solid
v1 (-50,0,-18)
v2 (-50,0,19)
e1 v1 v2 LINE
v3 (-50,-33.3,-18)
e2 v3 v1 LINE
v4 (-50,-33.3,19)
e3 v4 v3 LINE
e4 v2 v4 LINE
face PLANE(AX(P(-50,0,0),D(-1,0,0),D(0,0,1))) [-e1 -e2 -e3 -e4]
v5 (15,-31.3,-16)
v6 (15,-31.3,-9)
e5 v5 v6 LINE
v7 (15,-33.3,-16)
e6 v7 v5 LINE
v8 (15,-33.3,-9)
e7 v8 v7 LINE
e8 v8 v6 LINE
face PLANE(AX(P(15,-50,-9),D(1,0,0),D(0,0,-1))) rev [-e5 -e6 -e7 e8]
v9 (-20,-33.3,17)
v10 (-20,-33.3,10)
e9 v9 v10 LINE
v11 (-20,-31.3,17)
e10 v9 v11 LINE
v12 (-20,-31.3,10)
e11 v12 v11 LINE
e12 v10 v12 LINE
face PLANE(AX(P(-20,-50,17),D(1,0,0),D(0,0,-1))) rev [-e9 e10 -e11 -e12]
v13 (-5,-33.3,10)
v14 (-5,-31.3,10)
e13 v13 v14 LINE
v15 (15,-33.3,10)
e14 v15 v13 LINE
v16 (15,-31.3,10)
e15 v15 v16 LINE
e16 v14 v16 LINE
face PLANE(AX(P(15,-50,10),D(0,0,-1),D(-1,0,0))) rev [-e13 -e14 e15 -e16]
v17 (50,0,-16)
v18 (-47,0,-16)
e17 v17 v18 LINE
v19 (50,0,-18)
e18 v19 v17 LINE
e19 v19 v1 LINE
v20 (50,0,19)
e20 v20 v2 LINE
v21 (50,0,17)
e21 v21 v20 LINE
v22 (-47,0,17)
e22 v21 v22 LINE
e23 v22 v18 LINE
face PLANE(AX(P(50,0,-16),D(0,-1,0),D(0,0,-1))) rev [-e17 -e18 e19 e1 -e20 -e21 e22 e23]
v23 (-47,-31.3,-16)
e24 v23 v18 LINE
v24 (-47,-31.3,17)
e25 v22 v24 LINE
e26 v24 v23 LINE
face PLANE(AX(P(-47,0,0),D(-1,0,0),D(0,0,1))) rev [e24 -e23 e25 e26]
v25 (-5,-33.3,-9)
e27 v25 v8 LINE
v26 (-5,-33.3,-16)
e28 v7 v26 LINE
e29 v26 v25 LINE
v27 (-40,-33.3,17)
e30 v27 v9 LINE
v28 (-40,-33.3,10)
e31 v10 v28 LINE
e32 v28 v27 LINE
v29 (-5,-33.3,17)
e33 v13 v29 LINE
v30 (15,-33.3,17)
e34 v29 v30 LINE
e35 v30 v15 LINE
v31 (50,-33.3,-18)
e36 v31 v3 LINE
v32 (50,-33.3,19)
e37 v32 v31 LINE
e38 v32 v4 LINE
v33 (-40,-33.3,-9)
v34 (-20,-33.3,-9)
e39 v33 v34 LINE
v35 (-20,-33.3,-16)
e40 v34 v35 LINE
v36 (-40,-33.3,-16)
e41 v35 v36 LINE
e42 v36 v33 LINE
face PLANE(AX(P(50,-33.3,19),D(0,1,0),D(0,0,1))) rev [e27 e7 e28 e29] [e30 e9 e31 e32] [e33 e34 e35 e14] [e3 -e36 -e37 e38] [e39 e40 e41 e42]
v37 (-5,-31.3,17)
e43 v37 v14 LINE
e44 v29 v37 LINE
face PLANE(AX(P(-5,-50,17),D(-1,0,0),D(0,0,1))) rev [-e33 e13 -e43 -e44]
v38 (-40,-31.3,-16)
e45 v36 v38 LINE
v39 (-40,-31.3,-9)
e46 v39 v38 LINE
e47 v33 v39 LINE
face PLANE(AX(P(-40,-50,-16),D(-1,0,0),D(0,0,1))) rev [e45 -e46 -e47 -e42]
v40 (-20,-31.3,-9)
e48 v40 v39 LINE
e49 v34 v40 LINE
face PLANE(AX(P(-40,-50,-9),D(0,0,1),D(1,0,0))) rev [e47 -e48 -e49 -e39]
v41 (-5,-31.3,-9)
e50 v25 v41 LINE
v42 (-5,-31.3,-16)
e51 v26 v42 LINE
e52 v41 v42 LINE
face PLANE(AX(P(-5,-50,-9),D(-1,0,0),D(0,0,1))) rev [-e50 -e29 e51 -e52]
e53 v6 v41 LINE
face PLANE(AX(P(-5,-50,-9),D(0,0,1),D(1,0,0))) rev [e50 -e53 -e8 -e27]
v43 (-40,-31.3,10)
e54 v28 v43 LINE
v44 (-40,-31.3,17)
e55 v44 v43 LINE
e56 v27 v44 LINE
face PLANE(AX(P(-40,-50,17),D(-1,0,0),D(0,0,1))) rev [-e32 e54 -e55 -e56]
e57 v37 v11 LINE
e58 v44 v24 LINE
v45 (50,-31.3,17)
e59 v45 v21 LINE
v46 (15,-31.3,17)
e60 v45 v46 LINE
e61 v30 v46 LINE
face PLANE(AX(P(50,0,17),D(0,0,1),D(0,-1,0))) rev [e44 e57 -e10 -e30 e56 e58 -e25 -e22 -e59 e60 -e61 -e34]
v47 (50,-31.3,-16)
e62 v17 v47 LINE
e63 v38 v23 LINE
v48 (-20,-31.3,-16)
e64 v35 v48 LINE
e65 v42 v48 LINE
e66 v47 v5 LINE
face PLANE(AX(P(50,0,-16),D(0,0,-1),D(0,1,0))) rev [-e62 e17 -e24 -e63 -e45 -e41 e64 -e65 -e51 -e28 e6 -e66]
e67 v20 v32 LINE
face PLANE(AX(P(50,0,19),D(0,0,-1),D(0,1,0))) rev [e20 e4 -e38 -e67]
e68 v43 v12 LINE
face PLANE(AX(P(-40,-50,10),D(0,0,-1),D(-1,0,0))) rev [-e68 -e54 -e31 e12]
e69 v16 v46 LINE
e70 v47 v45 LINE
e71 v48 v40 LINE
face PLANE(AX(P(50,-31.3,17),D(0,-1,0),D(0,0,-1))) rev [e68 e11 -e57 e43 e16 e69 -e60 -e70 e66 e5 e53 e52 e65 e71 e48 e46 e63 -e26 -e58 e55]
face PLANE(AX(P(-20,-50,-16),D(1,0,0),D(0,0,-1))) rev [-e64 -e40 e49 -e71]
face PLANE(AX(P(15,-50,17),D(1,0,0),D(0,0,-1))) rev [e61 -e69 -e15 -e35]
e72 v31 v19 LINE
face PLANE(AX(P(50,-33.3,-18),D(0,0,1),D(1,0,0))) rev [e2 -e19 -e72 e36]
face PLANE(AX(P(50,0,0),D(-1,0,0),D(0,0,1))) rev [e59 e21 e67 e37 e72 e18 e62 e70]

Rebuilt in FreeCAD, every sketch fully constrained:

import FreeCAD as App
import Part
import Sketcher
from FreeCAD import Vector
Q = App.Units.Quantity


def add_polygon(sketch, points):
    """Adds a closed chain of lines whose ends are joined by coincident constraints."""
    first, n = sketch.GeometryCount, len(points)
    for a, b in zip(points, points[1:] + points[:1]):
        sketch.addGeometry(Part.LineSegment(App.Vector(*a, 0), App.Vector(*b, 0)), False)
    for i in range(n):
        sketch.addConstraint(Sketcher.Constraint("Coincident", first + i, 2, first + (i + 1) % n, 1))

doc = App.newDocument("Part")
body = doc.addObject("PartDesign::Body", "Body")

sketch1 = body.newObject("Sketcher::SketchObject", "Sketch")
sketch1.AttachmentSupport = (doc.getObject("YZ_Plane"), [""])
sketch1.MapMode = "FlatFace"
add_polygon(sketch1, [(0, -18), (0, -16), (-31.3, -16), (-31.3, 17), (0, 17), (0, 19), (-33.3, 19), (-33.3, -18)])
sketch1.addConstraint([
    Sketcher.Constraint("Vertical", 0),
    Sketcher.Constraint("Horizontal", 1),
    Sketcher.Constraint("Vertical", 2),
    Sketcher.Constraint("Horizontal", 3),
    Sketcher.Constraint("Vertical", 4),
    Sketcher.Constraint("Horizontal", 5),
    Sketcher.Constraint("Vertical", 6),
    Sketcher.Constraint("Horizontal", 7),
    Sketcher.Constraint("PointOnObject", 0, 2, -2),
    Sketcher.Constraint("PointOnObject", 3, 2, -2),
    Sketcher.Constraint("Equal", 0, 4),
    Sketcher.Constraint("DistanceY", 0, 1, 0, 2, Q("2 mm")),
    Sketcher.Constraint("DistanceY", 2, 1, 2, 2, Q("33 mm")),
    Sketcher.Constraint("DistanceX", 1, 2, 1, 1, Q("31.3 mm")),
    Sketcher.Constraint("DistanceX", 5, 2, 5, 1, Q("33.3 mm")),
    Sketcher.Constraint("DistanceY", 0, 2, -1, 1, Q("16 mm")),
])
pad1 = body.newObject("PartDesign::Pad", "Pad")
pad1.Profile = sketch1
pad1.Length = 100
pad1.Midplane = True

sketch2 = body.newObject("Sketcher::SketchObject", "Sketch001")
sketch2.AttachmentSupport = (doc.getObject("YZ_Plane"), [""])
sketch2.MapMode = "FlatFace"
sketch2.AttachmentOffset = App.Placement(Vector(0, 0, -50), App.Rotation())
add_polygon(sketch2, [(0, -18), (-33, -18), (-33, 19), (0, 19)])
sketch2.addConstraint([
    Sketcher.Constraint("Horizontal", 0),
    Sketcher.Constraint("Vertical", 1),
    Sketcher.Constraint("Horizontal", 2),
    Sketcher.Constraint("Vertical", 3),
    Sketcher.Constraint("PointOnObject", 2, 2, -2),
    Sketcher.Constraint("DistanceY", 1, 1, 1, 2, Q("37 mm")),
    Sketcher.Constraint("DistanceX", 0, 2, 0, 1, Q("33.3 mm")),
    Sketcher.Constraint("DistanceY", 0, 2, -1, 1, Q("18 mm")),
])
pad2 = body.newObject("PartDesign::Pad", "Pad001")
pad2.Profile = sketch2
pad2.Length = 3

sketch3 = body.newObject("Sketcher::SketchObject", "Sketch002")
sketch3.AttachmentSupport = (doc.getObject("XZ_Plane"), [""])
sketch3.MapMode = "FlatFace"
add_polygon(sketch3, [(-40, 10), (-40, 17), (-20, 17), (-20, 10)])
add_polygon(sketch3, [(-5, 10), (-5, 17), (15, 17), (15, 10)])
add_polygon(sketch3, [(-40, -16), (-40, -9), (-20, -9), (-20, -16)])
add_polygon(sketch3, [(-5, -16), (-5, -9), (15, -9), (15, -16)])
sketch3.addConstraint([
    Sketcher.Constraint("Vertical", 0),
    Sketcher.Constraint("Horizontal", 1),
    Sketcher.Constraint("Vertical", 2),
    Sketcher.Constraint("Horizontal", 3),
    Sketcher.Constraint("Vertical", 4),
    Sketcher.Constraint("Horizontal", 5),
    Sketcher.Constraint("Vertical", 6),
    Sketcher.Constraint("Horizontal", 7),
    Sketcher.Constraint("Vertical", 8),
    Sketcher.Constraint("Horizontal", 9),
    Sketcher.Constraint("Vertical", 10),
    Sketcher.Constraint("Horizontal", 11),
    Sketcher.Constraint("Vertical", 12),
    Sketcher.Constraint("Horizontal", 13),
    Sketcher.Constraint("Vertical", 14),
    Sketcher.Constraint("Horizontal", 15),
    Sketcher.Constraint("Horizontal", 1, 2, 4, 2),
    Sketcher.Constraint("Horizontal", 3, 2, 6, 2),
    Sketcher.Constraint("Horizontal", 9, 2, 12, 2),
    Sketcher.Constraint("Horizontal", 11, 2, 14, 2),
    Sketcher.Constraint("Vertical", 3, 2, 8, 2),
    Sketcher.Constraint("Vertical", 2, 2, 9, 2),
    Sketcher.Constraint("Vertical", 7, 2, 12, 2),
    Sketcher.Constraint("Vertical", 6, 2, 13, 2),
    Sketcher.Constraint("Equal", 3, 5),
    Sketcher.Constraint("Equal", 6, 8),
    Sketcher.Constraint("DistanceX", 1, 1, 1, 2, Q("20 mm")),
    Sketcher.Constraint("DistanceY", 0, 1, 0, 2, Q("7 mm")),
    Sketcher.Constraint("DistanceX", 0, 2, -1, 1, Q("40 mm")),
    Sketcher.Constraint("DistanceY", -1, 1, 0, 2, Q("17 mm")),
    Sketcher.Constraint("DistanceX", 4, 2, -1, 1, Q("5 mm")),
    Sketcher.Constraint("DistanceY", 8, 2, -1, 1, Q("9 mm")),
])
pocket1 = body.newObject("PartDesign::Pocket", "Pocket")
pocket1.Profile = sketch3
pocket1.Length = 50
pocket1.Reversed = True

doc.recompute()
